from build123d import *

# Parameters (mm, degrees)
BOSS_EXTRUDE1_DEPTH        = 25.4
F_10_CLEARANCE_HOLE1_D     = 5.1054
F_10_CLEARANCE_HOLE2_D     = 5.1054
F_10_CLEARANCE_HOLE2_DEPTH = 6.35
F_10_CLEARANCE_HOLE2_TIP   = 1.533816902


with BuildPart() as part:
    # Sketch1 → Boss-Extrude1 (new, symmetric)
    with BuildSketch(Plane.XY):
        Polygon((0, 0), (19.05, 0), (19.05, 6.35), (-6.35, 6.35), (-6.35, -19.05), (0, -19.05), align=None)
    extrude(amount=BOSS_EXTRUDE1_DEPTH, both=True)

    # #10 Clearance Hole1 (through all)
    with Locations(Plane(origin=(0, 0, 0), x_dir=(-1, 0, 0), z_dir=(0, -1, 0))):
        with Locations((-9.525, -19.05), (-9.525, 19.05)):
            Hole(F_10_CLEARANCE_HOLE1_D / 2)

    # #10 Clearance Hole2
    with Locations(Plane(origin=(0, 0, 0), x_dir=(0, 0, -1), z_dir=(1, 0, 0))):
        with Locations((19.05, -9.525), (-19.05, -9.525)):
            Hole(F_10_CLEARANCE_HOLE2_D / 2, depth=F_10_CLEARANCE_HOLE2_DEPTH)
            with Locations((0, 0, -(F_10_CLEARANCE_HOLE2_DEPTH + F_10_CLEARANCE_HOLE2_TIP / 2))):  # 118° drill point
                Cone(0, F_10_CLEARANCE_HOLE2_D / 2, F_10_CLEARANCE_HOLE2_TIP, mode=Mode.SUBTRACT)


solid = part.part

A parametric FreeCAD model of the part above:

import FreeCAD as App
import Part
import Sketcher
Q = App.Units.Quantity


def add_polygon(sketch, points):
    """Adds a closed chain of lines whose ends are joined by coincident constraints."""
    first, n = sketch.GeometryCount, len(points)
    for a, b in zip(points, points[1:] + points[:1]):
        sketch.addGeometry(Part.LineSegment(App.Vector(*a, 0), App.Vector(*b, 0)), False)
    for i in range(n):
        sketch.addConstraint(Sketcher.Constraint("Coincident", first + i, 2, first + (i + 1) % n, 1))

doc = App.newDocument("Part")
body = doc.addObject("PartDesign::Body", "Body")

sketch1 = doc.addObject("Sketcher::SketchObject", "Sketch")
body.addObject(sketch1)
sketch1.AttachmentSupport = (doc.XY_Plane, [""])
sketch1.MapMode = "FlatFace"
add_polygon(sketch1, [(0, 0), (19.05, 0), (19.05, 6.35), (-6.35, 6.35), (-6.35, -19.05), (0, -19.05)])
sketch1.addConstraint([
    Sketcher.Constraint("Horizontal", 0),
    Sketcher.Constraint("Vertical", 1),
    Sketcher.Constraint("Horizontal", 2),
    Sketcher.Constraint("Vertical", 3),
    Sketcher.Constraint("Horizontal", 4),
    Sketcher.Constraint("Vertical", 5),
    Sketcher.Constraint("Coincident", 5, 2, -1, 1),
    Sketcher.Constraint("Equal", 4, 1),
    Sketcher.Constraint("Equal", 2, 3),
    Sketcher.Constraint("DistanceX", 2, 2, 2, 1, Q("1 in")),
    Sketcher.Constraint("DistanceX", 0, 1, 0, 2, Q("0.75 in")),
])
pad1 = doc.addObject("PartDesign::Pad", "Pad")
body.addObject(pad1)
pad1.Profile = sketch1
pad1.Length = Q("2 in")
pad1.Midplane = True

sketch2 = doc.addObject("Sketcher::SketchObject", "Sketch001")
body.addObject(sketch2)
sketch2.AttachmentSupport = (doc.XZ_Plane, [""])
sketch2.MapMode = "FlatFace"
sketch2.addGeometry([
    Part.Circle(App.Vector(9.525, 19.05, 0), App.Vector(0, 0, 1), 2.5527),
    Part.Circle(App.Vector(9.525, -19.05, 0), App.Vector(0, 0, 1), 2.5527),
], False)
sketch2.addConstraint([
    Sketcher.Constraint("Equal", 0, 1),
    Sketcher.Constraint("Symmetric", 0, 3, 1, 3, -1),
    Sketcher.Constraint("Diameter", 0, Q("0.201 in")),
    Sketcher.Constraint("DistanceY", 1, 3, 0, 3, Q("1.5 in")),
    Sketcher.Constraint("DistanceX", -1, 1, 0, 3, Q("0.375 in")),
])
doc.recompute()
hole = doc.addObject("PartDesign::Hole", "Hole")
body.addObject(hole)
hole.Profile = sketch2
hole.ThreadType = "None"
hole.Diameter = Q("0.201 in")
hole.DepthType = "ThroughAll"

sketch3 = doc.addObject("Sketcher::SketchObject", "Sketch002")
body.addObject(sketch3)
sketch3.AttachmentSupport = (doc.YZ_Plane, [""])
sketch3.MapMode = "FlatFace"
sketch3.addGeometry([
    Part.Circle(App.Vector(-9.525, -19.05, 0), App.Vector(0, 0, 1), 2.5527),
    Part.Circle(App.Vector(-9.525, 19.05, 0), App.Vector(0, 0, 1), 2.5527),
], False)
sketch3.addConstraint([
    Sketcher.Constraint("Equal", 0, 1),
    Sketcher.Constraint("Symmetric", 0, 3, 1, 3, -1),
    Sketcher.Constraint("Diameter", 0, Q("0.201 in")),
    Sketcher.Constraint("DistanceY", 0, 3, 1, 3, Q("1.5 in")),
    Sketcher.Constraint("DistanceX", 0, 3, -1, 1, Q("0.375 in")),
])
doc.recompute()
hole2 = doc.addObject("PartDesign::Hole", "Hole001")
body.addObject(hole2)
hole2.Profile = sketch3
hole2.ThreadType = "None"
hole2.Diameter = Q("0.201 in")
hole2.DepthType = "Dimension"
hole2.Depth = Q("0.25 in")
hole2.DrillPoint = "Angled"
hole2.DrillPointAngle = 118

doc.recompute()
